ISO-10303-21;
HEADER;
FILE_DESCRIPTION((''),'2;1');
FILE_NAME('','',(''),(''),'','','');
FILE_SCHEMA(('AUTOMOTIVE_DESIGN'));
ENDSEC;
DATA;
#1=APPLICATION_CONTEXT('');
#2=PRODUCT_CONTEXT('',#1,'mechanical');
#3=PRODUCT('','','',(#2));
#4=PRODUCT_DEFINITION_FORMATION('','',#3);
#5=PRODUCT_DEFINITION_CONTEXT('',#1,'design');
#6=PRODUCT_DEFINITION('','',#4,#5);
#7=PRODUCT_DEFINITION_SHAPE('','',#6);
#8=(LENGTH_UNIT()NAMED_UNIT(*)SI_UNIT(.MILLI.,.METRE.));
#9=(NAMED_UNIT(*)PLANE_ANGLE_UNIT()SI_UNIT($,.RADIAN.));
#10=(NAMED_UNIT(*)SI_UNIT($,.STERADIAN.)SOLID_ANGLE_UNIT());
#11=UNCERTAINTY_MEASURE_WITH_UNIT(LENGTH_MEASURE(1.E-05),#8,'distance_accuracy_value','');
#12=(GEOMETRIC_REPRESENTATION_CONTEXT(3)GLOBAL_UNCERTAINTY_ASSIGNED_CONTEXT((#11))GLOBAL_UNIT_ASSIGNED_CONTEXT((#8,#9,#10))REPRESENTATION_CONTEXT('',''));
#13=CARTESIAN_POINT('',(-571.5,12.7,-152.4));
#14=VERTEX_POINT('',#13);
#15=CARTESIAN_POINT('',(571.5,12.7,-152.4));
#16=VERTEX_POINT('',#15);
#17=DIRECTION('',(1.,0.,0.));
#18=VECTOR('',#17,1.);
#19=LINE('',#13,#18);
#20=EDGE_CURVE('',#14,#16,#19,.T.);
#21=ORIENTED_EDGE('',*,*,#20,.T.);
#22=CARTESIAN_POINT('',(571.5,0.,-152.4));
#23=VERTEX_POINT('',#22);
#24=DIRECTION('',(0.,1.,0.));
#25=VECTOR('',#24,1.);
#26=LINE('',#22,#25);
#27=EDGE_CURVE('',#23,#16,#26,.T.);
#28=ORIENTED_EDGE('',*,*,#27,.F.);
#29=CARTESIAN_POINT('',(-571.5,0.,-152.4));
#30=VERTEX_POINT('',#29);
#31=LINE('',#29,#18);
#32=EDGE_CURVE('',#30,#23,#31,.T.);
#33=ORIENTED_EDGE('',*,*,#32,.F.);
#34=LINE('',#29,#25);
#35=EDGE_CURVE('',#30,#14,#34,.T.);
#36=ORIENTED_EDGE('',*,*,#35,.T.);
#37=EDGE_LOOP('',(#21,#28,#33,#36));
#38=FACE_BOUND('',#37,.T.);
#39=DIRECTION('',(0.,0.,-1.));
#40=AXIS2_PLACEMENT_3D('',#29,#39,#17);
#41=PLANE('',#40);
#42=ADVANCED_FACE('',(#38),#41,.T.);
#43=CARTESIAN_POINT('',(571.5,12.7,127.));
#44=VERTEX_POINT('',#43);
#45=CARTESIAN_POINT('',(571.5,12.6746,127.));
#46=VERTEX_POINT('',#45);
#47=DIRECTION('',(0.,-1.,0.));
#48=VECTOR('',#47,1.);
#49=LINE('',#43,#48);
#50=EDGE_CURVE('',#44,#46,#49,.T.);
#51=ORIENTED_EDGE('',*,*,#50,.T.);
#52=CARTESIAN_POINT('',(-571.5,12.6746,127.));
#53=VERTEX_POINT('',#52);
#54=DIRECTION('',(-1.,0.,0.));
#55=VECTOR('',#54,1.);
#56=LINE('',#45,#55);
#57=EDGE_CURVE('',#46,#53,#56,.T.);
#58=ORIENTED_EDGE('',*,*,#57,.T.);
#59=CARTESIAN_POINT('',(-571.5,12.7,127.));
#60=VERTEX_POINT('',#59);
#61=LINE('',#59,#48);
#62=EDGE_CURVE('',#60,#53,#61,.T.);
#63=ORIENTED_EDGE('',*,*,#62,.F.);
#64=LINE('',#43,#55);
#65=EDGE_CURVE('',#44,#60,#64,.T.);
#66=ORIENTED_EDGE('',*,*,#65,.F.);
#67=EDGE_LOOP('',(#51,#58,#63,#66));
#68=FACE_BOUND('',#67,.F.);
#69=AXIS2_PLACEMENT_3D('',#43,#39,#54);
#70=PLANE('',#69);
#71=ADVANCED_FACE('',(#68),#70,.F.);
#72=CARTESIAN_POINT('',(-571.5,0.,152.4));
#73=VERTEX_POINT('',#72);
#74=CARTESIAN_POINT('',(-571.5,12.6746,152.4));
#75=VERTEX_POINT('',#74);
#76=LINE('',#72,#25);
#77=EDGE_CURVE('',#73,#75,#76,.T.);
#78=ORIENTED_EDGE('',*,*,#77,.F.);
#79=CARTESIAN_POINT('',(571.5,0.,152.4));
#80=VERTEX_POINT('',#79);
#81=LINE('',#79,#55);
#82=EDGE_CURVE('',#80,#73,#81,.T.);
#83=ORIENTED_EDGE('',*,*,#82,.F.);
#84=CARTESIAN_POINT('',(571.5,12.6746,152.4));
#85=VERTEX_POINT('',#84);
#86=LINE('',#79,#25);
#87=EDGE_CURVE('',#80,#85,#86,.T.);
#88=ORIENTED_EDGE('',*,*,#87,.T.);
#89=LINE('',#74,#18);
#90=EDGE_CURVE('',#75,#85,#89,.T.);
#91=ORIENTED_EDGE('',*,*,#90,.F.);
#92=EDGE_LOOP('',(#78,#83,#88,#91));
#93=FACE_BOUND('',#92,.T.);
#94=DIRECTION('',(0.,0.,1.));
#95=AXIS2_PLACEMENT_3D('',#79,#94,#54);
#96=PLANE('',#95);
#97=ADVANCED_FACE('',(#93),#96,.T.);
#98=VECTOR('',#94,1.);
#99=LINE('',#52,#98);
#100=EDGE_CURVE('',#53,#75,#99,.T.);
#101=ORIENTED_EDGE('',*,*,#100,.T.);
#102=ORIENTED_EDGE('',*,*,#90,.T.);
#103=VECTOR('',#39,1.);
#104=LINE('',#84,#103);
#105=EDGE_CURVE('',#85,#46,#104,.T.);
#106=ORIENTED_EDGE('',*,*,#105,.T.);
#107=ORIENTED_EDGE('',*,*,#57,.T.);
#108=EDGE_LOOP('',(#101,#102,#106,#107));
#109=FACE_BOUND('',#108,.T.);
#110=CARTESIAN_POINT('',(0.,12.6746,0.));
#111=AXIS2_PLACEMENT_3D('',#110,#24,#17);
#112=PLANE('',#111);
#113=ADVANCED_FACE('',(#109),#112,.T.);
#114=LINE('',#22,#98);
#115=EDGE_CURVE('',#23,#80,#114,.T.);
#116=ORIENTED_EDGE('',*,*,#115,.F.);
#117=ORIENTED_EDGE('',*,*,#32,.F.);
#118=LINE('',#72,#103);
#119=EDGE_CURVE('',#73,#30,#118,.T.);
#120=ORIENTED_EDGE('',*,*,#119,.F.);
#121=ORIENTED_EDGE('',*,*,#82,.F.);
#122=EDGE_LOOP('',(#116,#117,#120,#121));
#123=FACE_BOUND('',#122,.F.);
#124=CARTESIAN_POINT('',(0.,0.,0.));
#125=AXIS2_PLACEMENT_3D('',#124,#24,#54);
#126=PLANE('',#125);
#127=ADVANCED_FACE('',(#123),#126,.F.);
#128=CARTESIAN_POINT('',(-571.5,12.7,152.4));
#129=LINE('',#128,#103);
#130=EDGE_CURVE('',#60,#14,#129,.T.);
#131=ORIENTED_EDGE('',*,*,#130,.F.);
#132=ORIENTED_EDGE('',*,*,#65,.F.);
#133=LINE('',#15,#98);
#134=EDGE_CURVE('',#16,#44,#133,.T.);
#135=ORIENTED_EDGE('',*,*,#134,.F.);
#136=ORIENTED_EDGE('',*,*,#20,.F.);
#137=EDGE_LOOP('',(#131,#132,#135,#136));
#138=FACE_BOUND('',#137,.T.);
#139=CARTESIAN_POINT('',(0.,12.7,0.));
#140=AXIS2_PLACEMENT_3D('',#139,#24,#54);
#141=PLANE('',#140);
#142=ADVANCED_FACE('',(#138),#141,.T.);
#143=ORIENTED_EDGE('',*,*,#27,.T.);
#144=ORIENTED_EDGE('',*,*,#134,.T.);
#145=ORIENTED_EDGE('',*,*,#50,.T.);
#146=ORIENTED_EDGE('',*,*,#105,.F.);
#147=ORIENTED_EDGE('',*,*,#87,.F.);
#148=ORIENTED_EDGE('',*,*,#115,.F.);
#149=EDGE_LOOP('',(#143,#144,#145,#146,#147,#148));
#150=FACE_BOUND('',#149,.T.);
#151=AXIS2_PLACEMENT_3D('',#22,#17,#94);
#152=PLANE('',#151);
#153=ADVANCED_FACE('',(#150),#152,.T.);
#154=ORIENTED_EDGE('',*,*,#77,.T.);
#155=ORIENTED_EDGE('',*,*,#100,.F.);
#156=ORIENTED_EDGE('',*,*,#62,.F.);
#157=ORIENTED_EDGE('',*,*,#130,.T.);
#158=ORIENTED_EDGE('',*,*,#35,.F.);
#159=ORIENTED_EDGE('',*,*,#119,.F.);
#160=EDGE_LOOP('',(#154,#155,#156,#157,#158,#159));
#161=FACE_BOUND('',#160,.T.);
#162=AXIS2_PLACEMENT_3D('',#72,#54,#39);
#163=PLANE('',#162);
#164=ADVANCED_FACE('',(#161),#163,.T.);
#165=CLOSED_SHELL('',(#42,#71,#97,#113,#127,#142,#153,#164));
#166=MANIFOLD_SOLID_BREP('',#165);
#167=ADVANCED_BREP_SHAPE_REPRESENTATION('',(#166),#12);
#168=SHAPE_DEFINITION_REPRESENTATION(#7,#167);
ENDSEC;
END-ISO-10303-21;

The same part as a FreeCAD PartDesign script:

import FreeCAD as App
import Part
import Sketcher
from FreeCAD import Vector
Q = App.Units.Quantity

doc = App.newDocument("Part")
params = doc.addObject("Spreadsheet::Sheet", "Params")
for row, (alias, value) in enumerate([
    ("sketch1_width", "45 in"),
    ("sketch1_height", "12 in"),
    ("pad1_length", "0.5 in"),
    ("sketch2_height", "1 in"),
    ("sketch2_width", "45 in"),
    ("pocket1_length", "0.001 in"),
], start=1):
    params.set(f"A{row}", alias)
    params.set(f"B{row}", "=" + value)
    params.setAlias(f"B{row}", alias)

body = doc.addObject("PartDesign::Body", "Body")

sketch1 = body.newObject("Sketcher::SketchObject", "Sketch")
sketch1.AttachmentSupport = (doc.getObject("XZ_Plane"), [""])
sketch1.MapMode = "FlatFace"
sketch1.addGeometry(Part.LineSegment(Vector(-572, 152, 0), Vector(572, 152, 0)), False)
sketch1.addGeometry(Part.LineSegment(Vector(572, 152, 0), Vector(572, -152, 0)), False)
sketch1.addGeometry(Part.LineSegment(Vector(572, -152, 0), Vector(-572, -152, 0)), False)
sketch1.addGeometry(Part.LineSegment(Vector(-572, -152, 0), Vector(-572, 152, 0)), False)
sketch1.addConstraint(Sketcher.Constraint("Coincident", 0, 2, 1, 1))
sketch1.addConstraint(Sketcher.Constraint("Coincident", 1, 2, 2, 1))
sketch1.addConstraint(Sketcher.Constraint("Coincident", 2, 2, 3, 1))
sketch1.addConstraint(Sketcher.Constraint("Coincident", 3, 2, 0, 1))
sketch1.addConstraint(Sketcher.Constraint("Horizontal", 0))
sketch1.addConstraint(Sketcher.Constraint("Vertical", 1))
sketch1.addConstraint(Sketcher.Constraint("Horizontal", 2))
sketch1.addConstraint(Sketcher.Constraint("Vertical", 3))
sketch1.addConstraint(Sketcher.Constraint("Symmetric", 0, 2, 2, 2, -1, 1))
sketch1.addConstraint(Sketcher.Constraint("DistanceX", 0, 1, 0, 2, Q("45 in")))
sketch1.addConstraint(Sketcher.Constraint("DistanceY", 1, 2, 1, 1, Q("12 in")))
sketch1.setExpression("Constraints[9]", "Params.sketch1_width")
sketch1.setExpression("Constraints[10]", "Params.sketch1_height")
pad1 = body.newObject("PartDesign::Pad", "Pad")
pad1.Profile = sketch1
pad1.setExpression("Length", "Params.pad1_length")
pad1.Reversed = True

sketch2 = body.newObject("Sketcher::SketchObject", "Sketch001")
sketch2.AttachmentSupport = (doc.getObject("XZ_Plane"), [""])
sketch2.MapMode = "FlatFace"
sketch2.AttachmentOffset = App.Placement(Vector(0, 0, -0.5 * 25.4), App.Rotation())
sketch2.addGeometry(Part.LineSegment(Vector(-572, 127, 0), Vector(-572, 152, 0)), False)
sketch2.addGeometry(Part.LineSegment(Vector(-572, 152, 0), Vector(572, 152, 0)), False)
sketch2.addGeometry(Part.LineSegment(Vector(572, 152, 0), Vector(572, 127, 0)), False)
sketch2.addGeometry(Part.LineSegment(Vector(572, 127, 0), Vector(-572, 127, 0)), False)
sketch2.addConstraint(Sketcher.Constraint("Coincident", 0, 2, 1, 1))
sketch2.addConstraint(Sketcher.Constraint("Coincident", 1, 2, 2, 1))
sketch2.addConstraint(Sketcher.Constraint("Coincident", 2, 2, 3, 1))
sketch2.addConstraint(Sketcher.Constraint("Coincident", 3, 2, 0, 1))
sketch2.addConstraint(Sketcher.Constraint("Vertical", 0))
sketch2.addConstraint(Sketcher.Constraint("Horizontal", 1))
sketch2.addConstraint(Sketcher.Constraint("Vertical", 2))
sketch2.addConstraint(Sketcher.Constraint("Horizontal", 3))
sketch2.addConstraint(Sketcher.Constraint("DistanceY", 0, 1, 0, 2, Q("1 in")))
sketch2.addConstraint(Sketcher.Constraint("DistanceX", 1, 1, 1, 2, Q("45 in")))
sketch2.addConstraint(Sketcher.Constraint("DistanceY", -1, 1, 0, 2, Q("6 in")))
sketch2.addConstraint(Sketcher.Constraint("DistanceX", 0, 2, -1, 1, Q("22.5 in")))
sketch2.setExpression("Constraints[8]", "Params.sketch2_height")
sketch2.setExpression("Constraints[9]", "Params.sketch2_width")
pocket1 = body.newObject("PartDesign::Pocket", "Pocket")
pocket1.Profile = sketch2
pocket1.setExpression("Length", "Params.pocket1_length")
pocket1.Reversed = True

doc.recompute()
